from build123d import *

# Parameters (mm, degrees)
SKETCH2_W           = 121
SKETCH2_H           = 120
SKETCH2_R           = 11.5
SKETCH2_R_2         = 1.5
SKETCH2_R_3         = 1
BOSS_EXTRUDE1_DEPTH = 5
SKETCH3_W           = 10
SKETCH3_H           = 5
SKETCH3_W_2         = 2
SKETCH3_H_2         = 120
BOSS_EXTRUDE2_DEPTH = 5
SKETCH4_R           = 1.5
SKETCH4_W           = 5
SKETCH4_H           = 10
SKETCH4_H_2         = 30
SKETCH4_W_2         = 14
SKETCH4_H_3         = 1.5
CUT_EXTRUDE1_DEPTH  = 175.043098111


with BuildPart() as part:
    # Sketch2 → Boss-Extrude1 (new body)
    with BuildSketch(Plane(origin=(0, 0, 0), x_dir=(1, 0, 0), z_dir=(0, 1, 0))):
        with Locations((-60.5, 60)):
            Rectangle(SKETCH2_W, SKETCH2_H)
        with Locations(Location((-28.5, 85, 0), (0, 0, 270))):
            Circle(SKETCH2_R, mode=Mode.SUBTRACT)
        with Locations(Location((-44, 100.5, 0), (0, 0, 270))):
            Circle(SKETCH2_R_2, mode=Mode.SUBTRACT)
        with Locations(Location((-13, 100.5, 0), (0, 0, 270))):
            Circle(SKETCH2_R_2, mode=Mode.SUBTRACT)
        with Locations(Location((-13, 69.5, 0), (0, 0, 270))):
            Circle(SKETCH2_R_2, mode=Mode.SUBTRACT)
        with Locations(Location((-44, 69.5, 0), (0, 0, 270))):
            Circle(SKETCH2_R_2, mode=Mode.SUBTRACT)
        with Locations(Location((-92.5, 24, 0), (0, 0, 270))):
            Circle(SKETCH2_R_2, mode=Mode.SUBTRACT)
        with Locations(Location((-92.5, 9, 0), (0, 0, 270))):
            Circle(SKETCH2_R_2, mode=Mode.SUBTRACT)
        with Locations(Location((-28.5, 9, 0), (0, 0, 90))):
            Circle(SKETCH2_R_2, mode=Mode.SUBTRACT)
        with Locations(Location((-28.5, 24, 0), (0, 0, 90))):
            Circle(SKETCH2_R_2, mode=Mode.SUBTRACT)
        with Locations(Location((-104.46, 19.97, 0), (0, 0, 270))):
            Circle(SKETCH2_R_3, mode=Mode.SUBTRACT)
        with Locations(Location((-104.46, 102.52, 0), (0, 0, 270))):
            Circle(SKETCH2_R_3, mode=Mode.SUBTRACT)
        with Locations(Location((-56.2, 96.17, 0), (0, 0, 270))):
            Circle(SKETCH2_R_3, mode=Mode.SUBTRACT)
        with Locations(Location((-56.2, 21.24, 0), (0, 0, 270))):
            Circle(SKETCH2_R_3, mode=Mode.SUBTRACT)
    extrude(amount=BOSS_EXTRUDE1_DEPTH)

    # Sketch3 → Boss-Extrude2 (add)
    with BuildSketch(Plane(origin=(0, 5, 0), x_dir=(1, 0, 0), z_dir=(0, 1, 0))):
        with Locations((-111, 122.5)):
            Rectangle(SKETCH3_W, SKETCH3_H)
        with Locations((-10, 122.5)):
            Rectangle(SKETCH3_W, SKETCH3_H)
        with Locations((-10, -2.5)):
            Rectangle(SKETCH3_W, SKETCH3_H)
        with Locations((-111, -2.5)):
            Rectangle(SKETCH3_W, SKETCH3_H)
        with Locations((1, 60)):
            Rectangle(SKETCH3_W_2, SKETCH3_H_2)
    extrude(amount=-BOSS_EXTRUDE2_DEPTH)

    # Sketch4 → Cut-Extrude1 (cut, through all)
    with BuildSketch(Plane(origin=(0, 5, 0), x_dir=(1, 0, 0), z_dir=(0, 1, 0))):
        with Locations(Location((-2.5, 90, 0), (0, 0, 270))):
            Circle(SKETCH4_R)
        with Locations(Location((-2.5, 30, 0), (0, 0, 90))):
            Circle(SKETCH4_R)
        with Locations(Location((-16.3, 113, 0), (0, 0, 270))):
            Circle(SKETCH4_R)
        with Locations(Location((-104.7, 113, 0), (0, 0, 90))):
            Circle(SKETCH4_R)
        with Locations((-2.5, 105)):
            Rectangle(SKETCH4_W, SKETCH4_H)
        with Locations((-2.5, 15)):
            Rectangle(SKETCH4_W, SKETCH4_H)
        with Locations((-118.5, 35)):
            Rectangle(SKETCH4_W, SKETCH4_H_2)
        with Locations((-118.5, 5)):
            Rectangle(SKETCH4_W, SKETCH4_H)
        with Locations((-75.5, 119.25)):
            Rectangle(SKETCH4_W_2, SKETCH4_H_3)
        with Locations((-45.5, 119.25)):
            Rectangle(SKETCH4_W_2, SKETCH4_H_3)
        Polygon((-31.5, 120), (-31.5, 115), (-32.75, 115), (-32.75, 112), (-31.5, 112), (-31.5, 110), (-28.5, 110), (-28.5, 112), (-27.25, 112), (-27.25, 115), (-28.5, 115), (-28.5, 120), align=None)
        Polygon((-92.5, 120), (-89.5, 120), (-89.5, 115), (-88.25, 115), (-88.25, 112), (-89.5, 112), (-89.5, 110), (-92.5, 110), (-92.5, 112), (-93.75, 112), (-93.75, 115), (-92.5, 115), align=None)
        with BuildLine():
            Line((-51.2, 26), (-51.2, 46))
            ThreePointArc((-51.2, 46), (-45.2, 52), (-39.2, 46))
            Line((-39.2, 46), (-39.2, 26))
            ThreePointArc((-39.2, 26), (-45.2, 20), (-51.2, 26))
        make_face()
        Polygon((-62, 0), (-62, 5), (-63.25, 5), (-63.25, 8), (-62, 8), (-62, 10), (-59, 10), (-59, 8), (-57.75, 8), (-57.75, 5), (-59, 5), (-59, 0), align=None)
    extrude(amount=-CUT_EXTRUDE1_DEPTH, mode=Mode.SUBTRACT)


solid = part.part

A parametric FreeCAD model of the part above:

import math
import FreeCAD as App
import Part
import Sketcher
Q = App.Units.Quantity

doc = App.newDocument("Part")
body = doc.addObject("PartDesign::Body", "Body")

sketch1 = body.newObject("Sketcher::SketchObject", "Sketch")
sketch1.AttachmentSupport = (doc.getObject("XZ_Plane"), [""])
sketch1.MapMode = "FlatFace"
sketch1.addGeometry(Part.LineSegment(App.Vector(-121, -120, 0), App.Vector(-121, 0, 0)), False)
sketch1.addGeometry(Part.LineSegment(App.Vector(-121, 0, 0), App.Vector(0, 0, 0)), False)
sketch1.addGeometry(Part.LineSegment(App.Vector(0, 0, 0), App.Vector(0, -120, 0)), False)
sketch1.addGeometry(Part.LineSegment(App.Vector(0, -120, 0), App.Vector(-121, -120, 0)), False)
sketch1.addGeometry(Part.Circle(App.Vector(-92.5, -9, 0), App.Vector(0, 0, 1), 1.5), False)
sketch1.addGeometry(Part.Circle(App.Vector(-104.5, -20, 0), App.Vector(0, 0, 1), 1), False)
sketch1.addGeometry(Part.Circle(App.Vector(-92.5, -24, 0), App.Vector(0, 0, 1), 1.5), False)
sketch1.addGeometry(Part.Circle(App.Vector(-56.2, -21.2, 0), App.Vector(0, 0, 1), 1), False)
sketch1.addGeometry(Part.Circle(App.Vector(-28.5, -9, 0), App.Vector(0, 0, 1), 1.5), False)
sketch1.addGeometry(Part.Circle(App.Vector(-28.5, -24, 0), App.Vector(0, 0, 1), 1.5), False)
sketch1.addGeometry(Part.Circle(App.Vector(-104.5, -102.5, 0), App.Vector(0, 0, 1), 1), False)
sketch1.addGeometry(Part.Circle(App.Vector(-44, -69.5, 0), App.Vector(0, 0, 1), 1.5), False)
sketch1.addGeometry(Part.Circle(App.Vector(-13, -69.5, 0), App.Vector(0, 0, 1), 1.5), False)
sketch1.addGeometry(Part.Circle(App.Vector(-56.2, -96.2, 0), App.Vector(0, 0, 1), 1), False)
sketch1.addGeometry(Part.Circle(App.Vector(-44, -100.5, 0), App.Vector(0, 0, 1), 1.5), False)
sketch1.addGeometry(Part.Circle(App.Vector(-28.5, -85, 0), App.Vector(0, 0, 1), 11.5), False)
sketch1.addGeometry(Part.Circle(App.Vector(-13, -100.5, 0), App.Vector(0, 0, 1), 1.5), False)
sketch1.addConstraint(Sketcher.Constraint("Coincident", 0, 2, 1, 1))
sketch1.addConstraint(Sketcher.Constraint("Coincident", 1, 2, 2, 1))
sketch1.addConstraint(Sketcher.Constraint("Coincident", 2, 2, 3, 1))
sketch1.addConstraint(Sketcher.Constraint("Coincident", 3, 2, 0, 1))
sketch1.addConstraint(Sketcher.Constraint("Vertical", 0))
sketch1.addConstraint(Sketcher.Constraint("Horizontal", 1))
sketch1.addConstraint(Sketcher.Constraint("Vertical", 2))
sketch1.addConstraint(Sketcher.Constraint("Horizontal", 3))
sketch1.addConstraint(Sketcher.Constraint("Coincident", 1, 2, -1, 1))
sketch1.addConstraint(Sketcher.Constraint("Equal", 4, 6))
sketch1.addConstraint(Sketcher.Constraint("Equal", 5, 7))
sketch1.addConstraint(Sketcher.Constraint("Equal", 6, 8))
sketch1.addConstraint(Sketcher.Constraint("Equal", 8, 9))
sketch1.addConstraint(Sketcher.Constraint("Equal", 7, 10))
sketch1.addConstraint(Sketcher.Constraint("Equal", 9, 11))
sketch1.addConstraint(Sketcher.Constraint("Equal", 11, 12))
sketch1.addConstraint(Sketcher.Constraint("Equal", 10, 13))
sketch1.addConstraint(Sketcher.Constraint("Equal", 12, 14))
sketch1.addConstraint(Sketcher.Constraint("Equal", 14, 16))
sketch1.addConstraint(Sketcher.Constraint("Horizontal", 4, 3, 8, 3))
sketch1.addConstraint(Sketcher.Constraint("Horizontal", 6, 3, 9, 3))
sketch1.addConstraint(Sketcher.Constraint("Horizontal", 11, 3, 12, 3))
sketch1.addConstraint(Sketcher.Constraint("Horizontal", 14, 3, 16, 3))
sketch1.addConstraint(Sketcher.Constraint("Vertical", 4, 3, 6, 3))
sketch1.addConstraint(Sketcher.Constraint("Vertical", 8, 3, 9, 3))
sketch1.addConstraint(Sketcher.Constraint("Vertical", 5, 3, 10, 3))
sketch1.addConstraint(Sketcher.Constraint("Vertical", 7, 3, 13, 3))
sketch1.addConstraint(Sketcher.Constraint("Vertical", 11, 3, 14, 3))
sketch1.addConstraint(Sketcher.Constraint("Vertical", 9, 3, 15, 3))
sketch1.addConstraint(Sketcher.Constraint("Vertical", 12, 3, 16, 3))
sketch1.addConstraint(Sketcher.Constraint("Diameter", 4, Q("3 mm")))
sketch1.addConstraint(Sketcher.Constraint("Diameter", 5, Q("2 mm")))
sketch1.addConstraint(Sketcher.Constraint("Diameter", 15, Q("23 mm")))
sketch1.addConstraint(Sketcher.Constraint("DistanceX", 1, 1, 1, 2, Q("121 mm")))
sketch1.addConstraint(Sketcher.Constraint("DistanceY", 0, 1, 0, 2, Q("120 mm")))
sketch1.addConstraint(Sketcher.Constraint("DistanceY", 4, 3, -1, 1, Q("9 mm")))
sketch1.addConstraint(Sketcher.Constraint("DistanceY", 6, 3, -1, 1, Q("24 mm")))
sketch1.addConstraint(Sketcher.Constraint("DistanceX", 11, 3, -1, 1, Q("44 mm")))
sketch1.addConstraint(Sketcher.Constraint("DistanceX", 12, 3, -1, 1, Q("13 mm")))
sketch1.addConstraint(Sketcher.Constraint("DistanceY", 15, 3, -1, 1, Q("85 mm")))
sketch1.addConstraint(Sketcher.Constraint("DistanceX", 4, 3, 8, 3, Q("64 mm")))
sketch1.addConstraint(Sketcher.Constraint("DistanceY", 14, 3, 11, 3, Q("31 mm")))
sketch1.addConstraint(Sketcher.Constraint("DistanceX", 4, 3, -1, 1, Q("92.5 mm")))
sketch1.addConstraint(Sketcher.Constraint("DistanceX", 7, 3, -1, 1, Q("56.2 mm")))
sketch1.addConstraint(Sketcher.Constraint("DistanceY", 11, 3, -1, 1, Q("69.5 mm")))
sketch1.addConstraint(Sketcher.Constraint("DistanceX", 5, 3, -1, 1, Q("104.46 mm")))
sketch1.addConstraint(Sketcher.Constraint("DistanceY", 5, 3, -1, 1, Q("19.97 mm")))
sketch1.addConstraint(Sketcher.Constraint("DistanceY", 7, 3, -1, 1, Q("21.24 mm")))
sketch1.addConstraint(Sketcher.Constraint("DistanceY", 10, 3, -1, 1, Q("102.52 mm")))
sketch1.addConstraint(Sketcher.Constraint("DistanceY", 13, 3, -1, 1, Q("96.17 mm")))
pad1 = body.newObject("PartDesign::Pad", "Pad")
pad1.Profile = sketch1
pad1.Length = 5
pad1.Reversed = True

sketch2 = body.newObject("Sketcher::SketchObject", "Sketch001")
sketch2.AttachmentSupport = (doc.getObject("XZ_Plane"), [""])
sketch2.MapMode = "FlatFace"
sketch2.AttachmentOffset = App.Placement(App.Vector(0, 0, -5), App.Rotation())
sketch2.addGeometry(Part.LineSegment(App.Vector(-116, -125, 0), App.Vector(-116, -120, 0)), False)
sketch2.addGeometry(Part.LineSegment(App.Vector(-116, -120, 0), App.Vector(-106, -120, 0)), False)
sketch2.addGeometry(Part.LineSegment(App.Vector(-106, -120, 0), App.Vector(-106, -125, 0)), False)
sketch2.addGeometry(Part.LineSegment(App.Vector(-106, -125, 0), App.Vector(-116, -125, 0)), False)
sketch2.addGeometry(Part.LineSegment(App.Vector(-15, -125, 0), App.Vector(-15, -120, 0)), False)
sketch2.addGeometry(Part.LineSegment(App.Vector(-15, -120, 0), App.Vector(-5, -120, 0)), False)
sketch2.addGeometry(Part.LineSegment(App.Vector(-5, -120, 0), App.Vector(-5, -125, 0)), False)
sketch2.addGeometry(Part.LineSegment(App.Vector(-5, -125, 0), App.Vector(-15, -125, 0)), False)
sketch2.addGeometry(Part.LineSegment(App.Vector(-15, 0, 0), App.Vector(-15, 5, 0)), False)
sketch2.addGeometry(Part.LineSegment(App.Vector(-15, 5, 0), App.Vector(-5, 5, 0)), False)
sketch2.addGeometry(Part.LineSegment(App.Vector(-5, 5, 0), App.Vector(-5, 0, 0)), False)
sketch2.addGeometry(Part.LineSegment(App.Vector(-5, 0, 0), App.Vector(-15, 0, 0)), False)
sketch2.addGeometry(Part.LineSegment(App.Vector(-116, 0, 0), App.Vector(-116, 5, 0)), False)
sketch2.addGeometry(Part.LineSegment(App.Vector(-116, 5, 0), App.Vector(-106, 5, 0)), False)
sketch2.addGeometry(Part.LineSegment(App.Vector(-106, 5, 0), App.Vector(-106, 0, 0)), False)
sketch2.addGeometry(Part.LineSegment(App.Vector(-106, 0, 0), App.Vector(-116, 0, 0)), False)
sketch2.addGeometry(Part.LineSegment(App.Vector(0, -120, 0), App.Vector(0, 0, 0)), False)
sketch2.addGeometry(Part.LineSegment(App.Vector(0, 0, 0), App.Vector(2, 0, 0)), False)
sketch2.addGeometry(Part.LineSegment(App.Vector(2, 0, 0), App.Vector(2, -120, 0)), False)
sketch2.addGeometry(Part.LineSegment(App.Vector(2, -120, 0), App.Vector(0, -120, 0)), False)
sketch2.addConstraint(Sketcher.Constraint("Coincident", 0, 2, 1, 1))
sketch2.addConstraint(Sketcher.Constraint("Coincident", 1, 2, 2, 1))
sketch2.addConstraint(Sketcher.Constraint("Coincident", 2, 2, 3, 1))
sketch2.addConstraint(Sketcher.Constraint("Coincident", 3, 2, 0, 1))
sketch2.addConstraint(Sketcher.Constraint("Coincident", 4, 2, 5, 1))
sketch2.addConstraint(Sketcher.Constraint("Coincident", 5, 2, 6, 1))
sketch2.addConstraint(Sketcher.Constraint("Coincident", 6, 2, 7, 1))
sketch2.addConstraint(Sketcher.Constraint("Coincident", 7, 2, 4, 1))
sketch2.addConstraint(Sketcher.Constraint("Coincident", 8, 2, 9, 1))
sketch2.addConstraint(Sketcher.Constraint("Coincident", 9, 2, 10, 1))
sketch2.addConstraint(Sketcher.Constraint("Coincident", 10, 2, 11, 1))
sketch2.addConstraint(Sketcher.Constraint("Coincident", 11, 2, 8, 1))
sketch2.addConstraint(Sketcher.Constraint("Coincident", 12, 2, 13, 1))
sketch2.addConstraint(Sketcher.Constraint("Coincident", 13, 2, 14, 1))
sketch2.addConstraint(Sketcher.Constraint("Coincident", 14, 2, 15, 1))
sketch2.addConstraint(Sketcher.Constraint("Coincident", 15, 2, 12, 1))
sketch2.addConstraint(Sketcher.Constraint("Coincident", 16, 2, 17, 1))
sketch2.addConstraint(Sketcher.Constraint("Coincident", 17, 2, 18, 1))
sketch2.addConstraint(Sketcher.Constraint("Coincident", 18, 2, 19, 1))
sketch2.addConstraint(Sketcher.Constraint("Coincident", 19, 2, 16, 1))
sketch2.addConstraint(Sketcher.Constraint("Vertical", 0))
sketch2.addConstraint(Sketcher.Constraint("Horizontal", 1))
sketch2.addConstraint(Sketcher.Constraint("Vertical", 2))
sketch2.addConstraint(Sketcher.Constraint("Horizontal", 3))
sketch2.addConstraint(Sketcher.Constraint("Vertical", 4))
sketch2.addConstraint(Sketcher.Constraint("Horizontal", 5))
sketch2.addConstraint(Sketcher.Constraint("Vertical", 6))
sketch2.addConstraint(Sketcher.Constraint("Horizontal", 7))
sketch2.addConstraint(Sketcher.Constraint("Vertical", 8))
sketch2.addConstraint(Sketcher.Constraint("Horizontal", 9))
sketch2.addConstraint(Sketcher.Constraint("Vertical", 10))
sketch2.addConstraint(Sketcher.Constraint("Horizontal", 11))
sketch2.addConstraint(Sketcher.Constraint("Vertical", 12))
sketch2.addConstraint(Sketcher.Constraint("Horizontal", 13))
sketch2.addConstraint(Sketcher.Constraint("Vertical", 14))
sketch2.addConstraint(Sketcher.Constraint("Horizontal", 15))
sketch2.addConstraint(Sketcher.Constraint("Vertical", 16))
sketch2.addConstraint(Sketcher.Constraint("Horizontal", 17))
sketch2.addConstraint(Sketcher.Constraint("Vertical", 18))
sketch2.addConstraint(Sketcher.Constraint("Horizontal", 19))
sketch2.addConstraint(Sketcher.Constraint("Coincident", 16, 2, -1, 1))
sketch2.addConstraint(Sketcher.Constraint("PointOnObject", 10, 2, -1))
sketch2.addConstraint(Sketcher.Constraint("PointOnObject", 14, 2, -1))
sketch2.addConstraint(Sketcher.Constraint("Horizontal", 1, 2, 4, 2))
sketch2.addConstraint(Sketcher.Constraint("Horizontal", 3, 2, 6, 2))
sketch2.addConstraint(Sketcher.Constraint("Horizontal", 9, 2, 12, 2))
sketch2.addConstraint(Sketcher.Constraint("Horizontal", 5, 2, 18, 2))
sketch2.addConstraint(Sketcher.Constraint("Vertical", 7, 2, 8, 2))
sketch2.addConstraint(Sketcher.Constraint("Vertical", 6, 2, 9, 2))
sketch2.addConstraint(Sketcher.Constraint("Vertical", 3, 2, 12, 2))
sketch2.addConstraint(Sketcher.Constraint("Vertical", 2, 2, 13, 2))
sketch2.addConstraint(Sketcher.Constraint("Equal", 3, 5))
sketch2.addConstraint(Sketcher.Constraint("Equal", 6, 8))
sketch2.addConstraint(Sketcher.Constraint("DistanceX", 1, 1, 1, 2, Q("10 mm")))
sketch2.addConstraint(Sketcher.Constraint("DistanceX", 17, 1, 17, 2, Q("2 mm")))
sketch2.addConstraint(Sketcher.Constraint("DistanceY", 0, 1, 0, 2, Q("5 mm")))
sketch2.addConstraint(Sketcher.Constraint("DistanceY", 16, 1, 16, 2, Q("120 mm")))
sketch2.addConstraint(Sketcher.Constraint("DistanceX", 0, 2, -1, 1, Q("116 mm")))
sketch2.addConstraint(Sketcher.Constraint("DistanceX", 4, 2, -1, 1, Q("15 mm")))
pad2 = body.newObject("PartDesign::Pad", "Pad001")
pad2.Profile = sketch2
pad2.Length = 5

sketch3 = body.newObject("Sketcher::SketchObject", "Sketch002")
sketch3.AttachmentSupport = (doc.getObject("XZ_Plane"), [""])
sketch3.MapMode = "FlatFace"
sketch3.AttachmentOffset = App.Placement(App.Vector(0, 0, -5), App.Rotation())
sketch3.addGeometry(Part.Circle(App.Vector(-2.5, -90, 0), App.Vector(0, 0, 1), 1.5), False)
sketch3.addGeometry(Part.Circle(App.Vector(-2.5, -30, 0), App.Vector(0, 0, 1), 1.5), False)
sketch3.addGeometry(Part.Circle(App.Vector(-16.3, -113, 0), App.Vector(0, 0, 1), 1.5), False)
sketch3.addGeometry(Part.Circle(App.Vector(-104.7, -113, 0), App.Vector(0, 0, 1), 1.5), False)
sketch3.addGeometry(Part.LineSegment(App.Vector(-5, -110, 0), App.Vector(-5, -100, 0)), False)
sketch3.addGeometry(Part.LineSegment(App.Vector(-5, -100, 0), App.Vector(0, -100, 0)), False)
sketch3.addGeometry(Part.LineSegment(App.Vector(0, -100, 0), App.Vector(0, -110, 0)), False)
sketch3.addGeometry(Part.LineSegment(App.Vector(0, -110, 0), App.Vector(-5, -110, 0)), False)
sketch3.addGeometry(Part.LineSegment(App.Vector(-5, -20, 0), App.Vector(-5, -10, 0)), False)
sketch3.addGeometry(Part.LineSegment(App.Vector(-5, -10, 0), App.Vector(0, -10, 0)), False)
sketch3.addGeometry(Part.LineSegment(App.Vector(0, -10, 0), App.Vector(0, -20, 0)), False)
sketch3.addGeometry(Part.LineSegment(App.Vector(0, -20, 0), App.Vector(-5, -20, 0)), False)
sketch3.addGeometry(Part.LineSegment(App.Vector(-121, -50, 0), App.Vector(-121, -20, 0)), False)
sketch3.addGeometry(Part.LineSegment(App.Vector(-121, -20, 0), App.Vector(-116, -20, 0)), False)
sketch3.addGeometry(Part.LineSegment(App.Vector(-116, -20, 0), App.Vector(-116, -50, 0)), False)
sketch3.addGeometry(Part.LineSegment(App.Vector(-116, -50, 0), App.Vector(-121, -50, 0)), False)
sketch3.addGeometry(Part.LineSegment(App.Vector(-121, -10, 0), App.Vector(-121, 0, 0)), False)
sketch3.addGeometry(Part.LineSegment(App.Vector(-121, 0, 0), App.Vector(-116, 0, 0)), False)
sketch3.addGeometry(Part.LineSegment(App.Vector(-116, 0, 0), App.Vector(-116, -10, 0)), False)
sketch3.addGeometry(Part.LineSegment(App.Vector(-116, -10, 0), App.Vector(-121, -10, 0)), False)
sketch3.addGeometry(Part.LineSegment(App.Vector(-82.5, -120, 0), App.Vector(-82.5, -118.5, 0)), False)
sketch3.addGeometry(Part.LineSegment(App.Vector(-82.5, -118.5, 0), App.Vector(-68.5, -118.5, 0)), False)
sketch3.addGeometry(Part.LineSegment(App.Vector(-68.5, -118.5, 0), App.Vector(-68.5, -120, 0)), False)
sketch3.addGeometry(Part.LineSegment(App.Vector(-68.5, -120, 0), App.Vector(-82.5, -120, 0)), False)
sketch3.addGeometry(Part.LineSegment(App.Vector(-52.5, -120, 0), App.Vector(-52.5, -118.5, 0)), False)
sketch3.addGeometry(Part.LineSegment(App.Vector(-52.5, -118.5, 0), App.Vector(-38.5, -118.5, 0)), False)
sketch3.addGeometry(Part.LineSegment(App.Vector(-38.5, -118.5, 0), App.Vector(-38.5, -120, 0)), False)
sketch3.addGeometry(Part.LineSegment(App.Vector(-38.5, -120, 0), App.Vector(-52.5, -120, 0)), False)
sketch3.addGeometry(Part.LineSegment(App.Vector(-31.5, -120, 0), App.Vector(-31.5, -115, 0)), False)
sketch3.addGeometry(Part.LineSegment(App.Vector(-31.5, -115, 0), App.Vector(-32.8, -115, 0)), False)
sketch3.addGeometry(Part.LineSegment(App.Vector(-32.8, -115, 0), App.Vector(-32.8, -112, 0)), False)
sketch3.addGeometry(Part.LineSegment(App.Vector(-32.8, -112, 0), App.Vector(-31.5, -112, 0)), False)
sketch3.addGeometry(Part.LineSegment(App.Vector(-31.5, -112, 0), App.Vector(-31.5, -110, 0)), False)
sketch3.addGeometry(Part.LineSegment(App.Vector(-31.5, -110, 0), App.Vector(-28.5, -110, 0)), False)
sketch3.addGeometry(Part.LineSegment(App.Vector(-28.5, -110, 0), App.Vector(-28.5, -112, 0)), False)
sketch3.addGeometry(Part.LineSegment(App.Vector(-28.5, -112, 0), App.Vector(-27.2, -112, 0)), False)
sketch3.addGeometry(Part.LineSegment(App.Vector(-27.2, -112, 0), App.Vector(-27.2, -115, 0)), False)
sketch3.addGeometry(Part.LineSegment(App.Vector(-27.2, -115, 0), App.Vector(-28.5, -115, 0)), False)
sketch3.addGeometry(Part.LineSegment(App.Vector(-28.5, -115, 0), App.Vector(-28.5, -120, 0)), False)
sketch3.addGeometry(Part.LineSegment(App.Vector(-28.5, -120, 0), App.Vector(-31.5, -120, 0)), False)
sketch3.addGeometry(Part.LineSegment(App.Vector(-89.5, -120, 0), App.Vector(-92.5, -120, 0)), False)
sketch3.addGeometry(Part.LineSegment(App.Vector(-92.5, -120, 0), App.Vector(-92.5, -115, 0)), False)
sketch3.addGeometry(Part.LineSegment(App.Vector(-92.5, -115, 0), App.Vector(-93.8, -115, 0)), False)
sketch3.addGeometry(Part.LineSegment(App.Vector(-93.8, -115, 0), App.Vector(-93.8, -112, 0)), False)
sketch3.addGeometry(Part.LineSegment(App.Vector(-93.8, -112, 0), App.Vector(-92.5, -112, 0)), False)
sketch3.addGeometry(Part.LineSegment(App.Vector(-92.5, -112, 0), App.Vector(-92.5, -110, 0)), False)
sketch3.addGeometry(Part.LineSegment(App.Vector(-92.5, -110, 0), App.Vector(-89.5, -110, 0)), False)
sketch3.addGeometry(Part.LineSegment(App.Vector(-89.5, -110, 0), App.Vector(-89.5, -112, 0)), False)
sketch3.addGeometry(Part.LineSegment(App.Vector(-89.5, -112, 0), App.Vector(-88.2, -112, 0)), False)
sketch3.addGeometry(Part.LineSegment(App.Vector(-88.2, -112, 0), App.Vector(-88.2, -115, 0)), False)
sketch3.addGeometry(Part.LineSegment(App.Vector(-88.2, -115, 0), App.Vector(-89.5, -115, 0)), False)
sketch3.addGeometry(Part.LineSegment(App.Vector(-89.5, -115, 0), App.Vector(-89.5, -120, 0)), False)
sketch3.addGeometry(Part.LineSegment(App.Vector(-51.2, -46, 0), App.Vector(-51.2, -26, 0)), False)
sketch3.addGeometry(Part.ArcOfCircle(Part.Circle(App.Vector(-45.2, -26, 0), App.Vector(0, 0, 1), 6), math.radians(0), math.radians(180)), False)
sketch3.addGeometry(Part.LineSegment(App.Vector(-39.2, -26, 0), App.Vector(-39.2, -46, 0)), False)
sketch3.addGeometry(Part.ArcOfCircle(Part.Circle(App.Vector(-45.2, -46, 0), App.Vector(0, 0, 1), 6), math.radians(180), math.radians(360)), False)
sketch3.addGeometry(Part.LineSegment(App.Vector(-62, -5, 0), App.Vector(-62, 0, 0)), False)
sketch3.addGeometry(Part.LineSegment(App.Vector(-62, 0, 0), App.Vector(-59, 0, 0)), False)
sketch3.addGeometry(Part.LineSegment(App.Vector(-59, 0, 0), App.Vector(-59, -5, 0)), False)
sketch3.addGeometry(Part.LineSegment(App.Vector(-59, -5, 0), App.Vector(-57.8, -5, 0)), False)
sketch3.addGeometry(Part.LineSegment(App.Vector(-57.8, -5, 0), App.Vector(-57.8, -8, 0)), False)
sketch3.addGeometry(Part.LineSegment(App.Vector(-57.8, -8, 0), App.Vector(-59, -8, 0)), False)
sketch3.addGeometry(Part.LineSegment(App.Vector(-59, -8, 0), App.Vector(-59, -10, 0)), False)
sketch3.addGeometry(Part.LineSegment(App.Vector(-59, -10, 0), App.Vector(-62, -10, 0)), False)
sketch3.addGeometry(Part.LineSegment(App.Vector(-62, -10, 0), App.Vector(-62, -8, 0)), False)
sketch3.addGeometry(Part.LineSegment(App.Vector(-62, -8, 0), App.Vector(-63.2, -8, 0)), False)
sketch3.addGeometry(Part.LineSegment(App.Vector(-63.2, -8, 0), App.Vector(-63.2, -5, 0)), False)
sketch3.addGeometry(Part.LineSegment(App.Vector(-63.2, -5, 0), App.Vector(-62, -5, 0)), False)
sketch3.addConstraint(Sketcher.Constraint("Coincident", 4, 2, 5, 1))
sketch3.addConstraint(Sketcher.Constraint("Coincident", 5, 2, 6, 1))
sketch3.addConstraint(Sketcher.Constraint("Coincident", 6, 2, 7, 1))
sketch3.addConstraint(Sketcher.Constraint("Coincident", 7, 2, 4, 1))
sketch3.addConstraint(Sketcher.Constraint("Coincident", 8, 2, 9, 1))
sketch3.addConstraint(Sketcher.Constraint("Coincident", 9, 2, 10, 1))
sketch3.addConstraint(Sketcher.Constraint("Coincident", 10, 2, 11, 1))
sketch3.addConstraint(Sketcher.Constraint("Coincident", 11, 2, 8, 1))
sketch3.addConstraint(Sketcher.Constraint("Coincident", 12, 2, 13, 1))
sketch3.addConstraint(Sketcher.Constraint("Coincident", 13, 2, 14, 1))
sketch3.addConstraint(Sketcher.Constraint("Coincident", 14, 2, 15, 1))
sketch3.addConstraint(Sketcher.Constraint("Coincident", 15, 2, 12, 1))
sketch3.addConstraint(Sketcher.Constraint("Coincident", 16, 2, 17, 1))
sketch3.addConstraint(Sketcher.Constraint("Coincident", 17, 2, 18, 1))
sketch3.addConstraint(Sketcher.Constraint("Coincident", 18, 2, 19, 1))
sketch3.addConstraint(Sketcher.Constraint("Coincident", 19, 2, 16, 1))
sketch3.addConstraint(Sketcher.Constraint("Coincident", 20, 2, 21, 1))
sketch3.addConstraint(Sketcher.Constraint("Coincident", 21, 2, 22, 1))
sketch3.addConstraint(Sketcher.Constraint("Coincident", 22, 2, 23, 1))
sketch3.addConstraint(Sketcher.Constraint("Coincident", 23, 2, 20, 1))
sketch3.addConstraint(Sketcher.Constraint("Coincident", 24, 2, 25, 1))
sketch3.addConstraint(Sketcher.Constraint("Coincident", 25, 2, 26, 1))
sketch3.addConstraint(Sketcher.Constraint("Coincident", 26, 2, 27, 1))
sketch3.addConstraint(Sketcher.Constraint("Coincident", 27, 2, 24, 1))
sketch3.addConstraint(Sketcher.Constraint("Coincident", 28, 2, 29, 1))
sketch3.addConstraint(Sketcher.Constraint("Coincident", 29, 2, 30, 1))
sketch3.addConstraint(Sketcher.Constraint("Coincident", 30, 2, 31, 1))
sketch3.addConstraint(Sketcher.Constraint("Coincident", 31, 2, 32, 1))
sketch3.addConstraint(Sketcher.Constraint("Coincident", 32, 2, 33, 1))
sketch3.addConstraint(Sketcher.Constraint("Coincident", 33, 2, 34, 1))
sketch3.addConstraint(Sketcher.Constraint("Coincident", 34, 2, 35, 1))
sketch3.addConstraint(Sketcher.Constraint("Coincident", 35, 2, 36, 1))
sketch3.addConstraint(Sketcher.Constraint("Coincident", 36, 2, 37, 1))
sketch3.addConstraint(Sketcher.Constraint("Coincident", 37, 2, 38, 1))
sketch3.addConstraint(Sketcher.Constraint("Coincident", 38, 2, 39, 1))
sketch3.addConstraint(Sketcher.Constraint("Coincident", 39, 2, 28, 1))
sketch3.addConstraint(Sketcher.Constraint("Coincident", 40, 2, 41, 1))
sketch3.addConstraint(Sketcher.Constraint("Coincident", 41, 2, 42, 1))
sketch3.addConstraint(Sketcher.Constraint("Coincident", 42, 2, 43, 1))
sketch3.addConstraint(Sketcher.Constraint("Coincident", 43, 2, 44, 1))
sketch3.addConstraint(Sketcher.Constraint("Coincident", 44, 2, 45, 1))
sketch3.addConstraint(Sketcher.Constraint("Coincident", 45, 2, 46, 1))
sketch3.addConstraint(Sketcher.Constraint("Coincident", 46, 2, 47, 1))
sketch3.addConstraint(Sketcher.Constraint("Coincident", 47, 2, 48, 1))
sketch3.addConstraint(Sketcher.Constraint("Coincident", 48, 2, 49, 1))
sketch3.addConstraint(Sketcher.Constraint("Coincident", 49, 2, 50, 1))
sketch3.addConstraint(Sketcher.Constraint("Coincident", 50, 2, 51, 1))
sketch3.addConstraint(Sketcher.Constraint("Coincident", 51, 2, 40, 1))
sketch3.addConstraint(Sketcher.Constraint("Tangent", 52, 2, 53, 2))
sketch3.addConstraint(Sketcher.Constraint("Tangent", 53, 1, 54, 1))
sketch3.addConstraint(Sketcher.Constraint("Tangent", 54, 2, 55, 2))
sketch3.addConstraint(Sketcher.Constraint("Tangent", 55, 1, 52, 1))
sketch3.addConstraint(Sketcher.Constraint("Coincident", 56, 2, 57, 1))
sketch3.addConstraint(Sketcher.Constraint("Coincident", 57, 2, 58, 1))
sketch3.addConstraint(Sketcher.Constraint("Coincident", 58, 2, 59, 1))
sketch3.addConstraint(Sketcher.Constraint("Coincident", 59, 2, 60, 1))
sketch3.addConstraint(Sketcher.Constraint("Coincident", 60, 2, 61, 1))
sketch3.addConstraint(Sketcher.Constraint("Coincident", 61, 2, 62, 1))
sketch3.addConstraint(Sketcher.Constraint("Coincident", 62, 2, 63, 1))
sketch3.addConstraint(Sketcher.Constraint("Coincident", 63, 2, 64, 1))
sketch3.addConstraint(Sketcher.Constraint("Coincident", 64, 2, 65, 1))
sketch3.addConstraint(Sketcher.Constraint("Coincident", 65, 2, 66, 1))
sketch3.addConstraint(Sketcher.Constraint("Coincident", 66, 2, 67, 1))
sketch3.addConstraint(Sketcher.Constraint("Coincident", 67, 2, 56, 1))
sketch3.addConstraint(Sketcher.Constraint("Vertical", 4))
sketch3.addConstraint(Sketcher.Constraint("Horizontal", 5))
sketch3.addConstraint(Sketcher.Constraint("Vertical", 6))
sketch3.addConstraint(Sketcher.Constraint("Horizontal", 7))
sketch3.addConstraint(Sketcher.Constraint("Vertical", 8))
sketch3.addConstraint(Sketcher.Constraint("Horizontal", 9))
sketch3.addConstraint(Sketcher.Constraint("Vertical", 10))
sketch3.addConstraint(Sketcher.Constraint("Horizontal", 11))
sketch3.addConstraint(Sketcher.Constraint("Vertical", 12))
sketch3.addConstraint(Sketcher.Constraint("Horizontal", 13))
sketch3.addConstraint(Sketcher.Constraint("Vertical", 14))
sketch3.addConstraint(Sketcher.Constraint("Horizontal", 15))
sketch3.addConstraint(Sketcher.Constraint("Vertical", 16))
sketch3.addConstraint(Sketcher.Constraint("Horizontal", 17))
sketch3.addConstraint(Sketcher.Constraint("Vertical", 18))
sketch3.addConstraint(Sketcher.Constraint("Horizontal", 19))
sketch3.addConstraint(Sketcher.Constraint("Vertical", 20))
sketch3.addConstraint(Sketcher.Constraint("Horizontal", 21))
sketch3.addConstraint(Sketcher.Constraint("Vertical", 22))
sketch3.addConstraint(Sketcher.Constraint("Horizontal", 23))
sketch3.addConstraint(Sketcher.Constraint("Vertical", 24))
sketch3.addConstraint(Sketcher.Constraint("Horizontal", 25))
sketch3.addConstraint(Sketcher.Constraint("Vertical", 26))
sketch3.addConstraint(Sketcher.Constraint("Horizontal", 27))
sketch3.addConstraint(Sketcher.Constraint("Vertical", 28))
sketch3.addConstraint(Sketcher.Constraint("Horizontal", 29))
sketch3.addConstraint(Sketcher.Constraint("Vertical", 30))
sketch3.addConstraint(Sketcher.Constraint("Horizontal", 31))
sketch3.addConstraint(Sketcher.Constraint("Vertical", 32))
sketch3.addConstraint(Sketcher.Constraint("Horizontal", 33))
sketch3.addConstraint(Sketcher.Constraint("Vertical", 34))
sketch3.addConstraint(Sketcher.Constraint("Horizontal", 35))
sketch3.addConstraint(Sketcher.Constraint("Vertical", 36))
sketch3.addConstraint(Sketcher.Constraint("Horizontal", 37))
sketch3.addConstraint(Sketcher.Constraint("Vertical", 38))
sketch3.addConstraint(Sketcher.Constraint("Horizontal", 39))
sketch3.addConstraint(Sketcher.Constraint("Horizontal", 40))
sketch3.addConstraint(Sketcher.Constraint("Vertical", 41))
sketch3.addConstraint(Sketcher.Constraint("Horizontal", 42))
sketch3.addConstraint(Sketcher.Constraint("Vertical", 43))
sketch3.addConstraint(Sketcher.Constraint("Horizontal", 44))
sketch3.addConstraint(Sketcher.Constraint("Vertical", 45))
sketch3.addConstraint(Sketcher.Constraint("Horizontal", 46))
sketch3.addConstraint(Sketcher.Constraint("Vertical", 47))
sketch3.addConstraint(Sketcher.Constraint("Horizontal", 48))
sketch3.addConstraint(Sketcher.Constraint("Vertical", 49))
sketch3.addConstraint(Sketcher.Constraint("Horizontal", 50))
sketch3.addConstraint(Sketcher.Constraint("Vertical", 51))
sketch3.addConstraint(Sketcher.Constraint("Vertical", 52))
sketch3.addConstraint(Sketcher.Constraint("Vertical", 54))
sketch3.addConstraint(Sketcher.Constraint("Vertical", 56))
sketch3.addConstraint(Sketcher.Constraint("Horizontal", 57))
sketch3.addConstraint(Sketcher.Constraint("Vertical", 58))
sketch3.addConstraint(Sketcher.Constraint("Horizontal", 59))
sketch3.addConstraint(Sketcher.Constraint("Vertical", 60))
sketch3.addConstraint(Sketcher.Constraint("Horizontal", 61))
sketch3.addConstraint(Sketcher.Constraint("Vertical", 62))
sketch3.addConstraint(Sketcher.Constraint("Horizontal", 63))
sketch3.addConstraint(Sketcher.Constraint("Vertical", 64))
sketch3.addConstraint(Sketcher.Constraint("Horizontal", 65))
sketch3.addConstraint(Sketcher.Constraint("Vertical", 66))
sketch3.addConstraint(Sketcher.Constraint("Horizontal", 67))
sketch3.addConstraint(Sketcher.Constraint("Equal", 0, 1))
sketch3.addConstraint(Sketcher.Constraint("Equal", 1, 2))
sketch3.addConstraint(Sketcher.Constraint("Equal", 2, 3))
sketch3.addConstraint(Sketcher.Constraint("PointOnObject", 5, 2, -2))
sketch3.addConstraint(Sketcher.Constraint("PointOnObject", 9, 2, -2))
sketch3.addConstraint(Sketcher.Constraint("PointOnObject", 16, 2, -1))
sketch3.addConstraint(Sketcher.Constraint("PointOnObject", 56, 2, -1))
sketch3.addConstraint(Sketcher.Constraint("Horizontal", 2, 3, 3, 3))
sketch3.addConstraint(Sketcher.Constraint("Horizontal", 11, 2, 12, 2))
sketch3.addConstraint(Sketcher.Constraint("Horizontal", 9, 2, 18, 2))
sketch3.addConstraint(Sketcher.Constraint("Horizontal", 21, 2, 24, 2))
sketch3.addConstraint(Sketcher.Constraint("Horizontal", 23, 2, 26, 2))
sketch3.addConstraint(Sketcher.Constraint("Horizontal", 7, 2, 32, 2))
sketch3.addConstraint(Sketcher.Constraint("Horizontal", 31, 2, 34, 2))
sketch3.addConstraint(Sketcher.Constraint("Horizontal", 29, 2, 36, 2))
sketch3.addConstraint(Sketcher.Constraint("Horizontal", 27, 2, 38, 2))
sketch3.addConstraint(Sketcher.Constraint("Horizontal", 39, 2, 40, 2))
sketch3.addConstraint(Sketcher.Constraint("Horizontal", 37, 2, 41, 2))
sketch3.addConstraint(Sketcher.Constraint("Horizontal", 35, 2, 43, 2))
sketch3.addConstraint(Sketcher.Constraint("Horizontal", 33, 2, 45, 2))
sketch3.addConstraint(Sketcher.Constraint("Horizontal", 44, 2, 47, 2))
sketch3.addConstraint(Sketcher.Constraint("Horizontal", 42, 2, 49, 2))
sketch3.addConstraint(Sketcher.Constraint("Horizontal", 19, 2, 62, 2))
sketch3.addConstraint(Sketcher.Constraint("Horizontal", 61, 2, 64, 2))
sketch3.addConstraint(Sketcher.Constraint("Horizontal", 59, 2, 66, 2))
sketch3.addConstraint(Sketcher.Constraint("Vertical", 0, 3, 1, 3))
sketch3.addConstraint(Sketcher.Constraint("Vertical", 7, 2, 8, 2))
sketch3.addConstraint(Sketcher.Constraint("Vertical", 15, 2, 16, 2))
sketch3.addConstraint(Sketcher.Constraint("Vertical", 14, 2, 17, 2))
sketch3.addConstraint(Sketcher.Constraint("Vertical", 28, 2, 31, 2))
sketch3.addConstraint(Sketcher.Constraint("Vertical", 34, 2, 37, 2))
sketch3.addConstraint(Sketcher.Constraint("Vertical", 41, 2, 44, 2))
sketch3.addConstraint(Sketcher.Constraint("Vertical", 47, 2, 50, 2))
sketch3.addConstraint(Sketcher.Constraint("Vertical", 58, 2, 61, 2))
sketch3.addConstraint(Sketcher.Constraint("Vertical", 56, 2, 63, 2))
sketch3.addConstraint(Sketcher.Constraint("Equal", 11, 13))
sketch3.addConstraint(Sketcher.Constraint("Equal", 23, 25))
sketch3.addConstraint(Sketcher.Constraint("Equal", 31, 35))
sketch3.addConstraint(Sketcher.Constraint("Equal", 39, 40))
sketch3.addConstraint(Sketcher.Constraint("Equal", 37, 42))
sketch3.addConstraint(Sketcher.Constraint("Equal", 44, 48))
sketch3.addConstraint(Sketcher.Constraint("Equal", 46, 57))
sketch3.addConstraint(Sketcher.Constraint("Equal", 50, 59))
sketch3.addConstraint(Sketcher.Constraint("Equal", 61, 65))
sketch3.addConstraint(Sketcher.Constraint("Equal", 6, 8))
sketch3.addConstraint(Sketcher.Constraint("Equal", 10, 16))
sketch3.addConstraint(Sketcher.Constraint("Equal", 19, 28))
sketch3.addConstraint(Sketcher.Constraint("Equal", 63, 30))
sketch3.addConstraint(Sketcher.Constraint("Equal", 51, 56))
sketch3.addConstraint(Sketcher.Constraint("Equal", 49, 60))
sketch3.addConstraint(Sketcher.Constraint("Equal", 47, 62))
sketch3.addConstraint(Sketcher.Constraint("Diameter", 0, Q("3 mm")))
sketch3.addConstraint(Sketcher.Constraint("Radius", 53, Q("6 mm")))
sketch3.addConstraint(Sketcher.Constraint("DistanceX", 5, 1, 5, 2, Q("5 mm")))
sketch3.addConstraint(Sketcher.Constraint("DistanceX", 21, 1, 21, 2, Q("14 mm")))
sketch3.addConstraint(Sketcher.Constraint("DistanceX", 33, 1, 33, 2, Q("3 mm")))
sketch3.addConstraint(Sketcher.Constraint("DistanceY", 4, 1, 4, 2, Q("10 mm")))
sketch3.addConstraint(Sketcher.Constraint("DistanceY", 12, 1, 12, 2, Q("30 mm")))
sketch3.addConstraint(Sketcher.Constraint("DistanceY", 52, 1, 52, 2, Q("20 mm")))
sketch3.addConstraint(Sketcher.Constraint("DistanceY", 20, 1, 20, 2, Q("1.5 mm")))
sketch3.addConstraint(Sketcher.Constraint("DistanceY", 0, 3, -1, 1, Q("90 mm")))
sketch3.addConstraint(Sketcher.Constraint("DistanceY", 1, 3, -1, 1, Q("30 mm")))
sketch3.addConstraint(Sketcher.Constraint("DistanceY", 2, 3, -1, 1, Q("113 mm")))
sketch3.addConstraint(Sketcher.Constraint("DistanceY", 53, 3, -1, 1, Q("26 mm")))
sketch3.addConstraint(Sketcher.Constraint("DistanceY", 4, 2, -1, 1, Q("100 mm")))
sketch3.addConstraint(Sketcher.Constraint("DistanceX", 12, 2, -1, 1, Q("121 mm")))
sketch3.addConstraint(Sketcher.Constraint("DistanceX", 56, 2, -1, 1, Q("62 mm")))
sketch3.addConstraint(Sketcher.Constraint("DistanceX", 29, 2, 29, 1, Q("1.25 mm")))
sketch3.addConstraint(Sketcher.Constraint("DistanceX", 0, 3, -1, 1, Q("2.5 mm")))
sketch3.addConstraint(Sketcher.Constraint("DistanceX", 2, 3, -1, 1, Q("16.3 mm")))
sketch3.addConstraint(Sketcher.Constraint("DistanceX", 3, 3, -1, 1, Q("104.7 mm")))
sketch3.addConstraint(Sketcher.Constraint("DistanceX", 53, 3, -1, 1, Q("45.2 mm")))
sketch3.addConstraint(Sketcher.Constraint("DistanceX", 20, 2, -1, 1, Q("82.5 mm")))
sketch3.addConstraint(Sketcher.Constraint("DistanceX", 24, 2, -1, 1, Q("52.5 mm")))
sketch3.addConstraint(Sketcher.Constraint("DistanceX", 28, 2, -1, 1, Q("31.5 mm")))
sketch3.addConstraint(Sketcher.Constraint("DistanceX", 40, 2, -1, 1, Q("92.5 mm")))
pocket1 = body.newObject("PartDesign::Pocket", "Pocket")
pocket1.Profile = sketch3
pocket1.Type = "ThroughAll"
pocket1.Reversed = True

doc.recompute()
